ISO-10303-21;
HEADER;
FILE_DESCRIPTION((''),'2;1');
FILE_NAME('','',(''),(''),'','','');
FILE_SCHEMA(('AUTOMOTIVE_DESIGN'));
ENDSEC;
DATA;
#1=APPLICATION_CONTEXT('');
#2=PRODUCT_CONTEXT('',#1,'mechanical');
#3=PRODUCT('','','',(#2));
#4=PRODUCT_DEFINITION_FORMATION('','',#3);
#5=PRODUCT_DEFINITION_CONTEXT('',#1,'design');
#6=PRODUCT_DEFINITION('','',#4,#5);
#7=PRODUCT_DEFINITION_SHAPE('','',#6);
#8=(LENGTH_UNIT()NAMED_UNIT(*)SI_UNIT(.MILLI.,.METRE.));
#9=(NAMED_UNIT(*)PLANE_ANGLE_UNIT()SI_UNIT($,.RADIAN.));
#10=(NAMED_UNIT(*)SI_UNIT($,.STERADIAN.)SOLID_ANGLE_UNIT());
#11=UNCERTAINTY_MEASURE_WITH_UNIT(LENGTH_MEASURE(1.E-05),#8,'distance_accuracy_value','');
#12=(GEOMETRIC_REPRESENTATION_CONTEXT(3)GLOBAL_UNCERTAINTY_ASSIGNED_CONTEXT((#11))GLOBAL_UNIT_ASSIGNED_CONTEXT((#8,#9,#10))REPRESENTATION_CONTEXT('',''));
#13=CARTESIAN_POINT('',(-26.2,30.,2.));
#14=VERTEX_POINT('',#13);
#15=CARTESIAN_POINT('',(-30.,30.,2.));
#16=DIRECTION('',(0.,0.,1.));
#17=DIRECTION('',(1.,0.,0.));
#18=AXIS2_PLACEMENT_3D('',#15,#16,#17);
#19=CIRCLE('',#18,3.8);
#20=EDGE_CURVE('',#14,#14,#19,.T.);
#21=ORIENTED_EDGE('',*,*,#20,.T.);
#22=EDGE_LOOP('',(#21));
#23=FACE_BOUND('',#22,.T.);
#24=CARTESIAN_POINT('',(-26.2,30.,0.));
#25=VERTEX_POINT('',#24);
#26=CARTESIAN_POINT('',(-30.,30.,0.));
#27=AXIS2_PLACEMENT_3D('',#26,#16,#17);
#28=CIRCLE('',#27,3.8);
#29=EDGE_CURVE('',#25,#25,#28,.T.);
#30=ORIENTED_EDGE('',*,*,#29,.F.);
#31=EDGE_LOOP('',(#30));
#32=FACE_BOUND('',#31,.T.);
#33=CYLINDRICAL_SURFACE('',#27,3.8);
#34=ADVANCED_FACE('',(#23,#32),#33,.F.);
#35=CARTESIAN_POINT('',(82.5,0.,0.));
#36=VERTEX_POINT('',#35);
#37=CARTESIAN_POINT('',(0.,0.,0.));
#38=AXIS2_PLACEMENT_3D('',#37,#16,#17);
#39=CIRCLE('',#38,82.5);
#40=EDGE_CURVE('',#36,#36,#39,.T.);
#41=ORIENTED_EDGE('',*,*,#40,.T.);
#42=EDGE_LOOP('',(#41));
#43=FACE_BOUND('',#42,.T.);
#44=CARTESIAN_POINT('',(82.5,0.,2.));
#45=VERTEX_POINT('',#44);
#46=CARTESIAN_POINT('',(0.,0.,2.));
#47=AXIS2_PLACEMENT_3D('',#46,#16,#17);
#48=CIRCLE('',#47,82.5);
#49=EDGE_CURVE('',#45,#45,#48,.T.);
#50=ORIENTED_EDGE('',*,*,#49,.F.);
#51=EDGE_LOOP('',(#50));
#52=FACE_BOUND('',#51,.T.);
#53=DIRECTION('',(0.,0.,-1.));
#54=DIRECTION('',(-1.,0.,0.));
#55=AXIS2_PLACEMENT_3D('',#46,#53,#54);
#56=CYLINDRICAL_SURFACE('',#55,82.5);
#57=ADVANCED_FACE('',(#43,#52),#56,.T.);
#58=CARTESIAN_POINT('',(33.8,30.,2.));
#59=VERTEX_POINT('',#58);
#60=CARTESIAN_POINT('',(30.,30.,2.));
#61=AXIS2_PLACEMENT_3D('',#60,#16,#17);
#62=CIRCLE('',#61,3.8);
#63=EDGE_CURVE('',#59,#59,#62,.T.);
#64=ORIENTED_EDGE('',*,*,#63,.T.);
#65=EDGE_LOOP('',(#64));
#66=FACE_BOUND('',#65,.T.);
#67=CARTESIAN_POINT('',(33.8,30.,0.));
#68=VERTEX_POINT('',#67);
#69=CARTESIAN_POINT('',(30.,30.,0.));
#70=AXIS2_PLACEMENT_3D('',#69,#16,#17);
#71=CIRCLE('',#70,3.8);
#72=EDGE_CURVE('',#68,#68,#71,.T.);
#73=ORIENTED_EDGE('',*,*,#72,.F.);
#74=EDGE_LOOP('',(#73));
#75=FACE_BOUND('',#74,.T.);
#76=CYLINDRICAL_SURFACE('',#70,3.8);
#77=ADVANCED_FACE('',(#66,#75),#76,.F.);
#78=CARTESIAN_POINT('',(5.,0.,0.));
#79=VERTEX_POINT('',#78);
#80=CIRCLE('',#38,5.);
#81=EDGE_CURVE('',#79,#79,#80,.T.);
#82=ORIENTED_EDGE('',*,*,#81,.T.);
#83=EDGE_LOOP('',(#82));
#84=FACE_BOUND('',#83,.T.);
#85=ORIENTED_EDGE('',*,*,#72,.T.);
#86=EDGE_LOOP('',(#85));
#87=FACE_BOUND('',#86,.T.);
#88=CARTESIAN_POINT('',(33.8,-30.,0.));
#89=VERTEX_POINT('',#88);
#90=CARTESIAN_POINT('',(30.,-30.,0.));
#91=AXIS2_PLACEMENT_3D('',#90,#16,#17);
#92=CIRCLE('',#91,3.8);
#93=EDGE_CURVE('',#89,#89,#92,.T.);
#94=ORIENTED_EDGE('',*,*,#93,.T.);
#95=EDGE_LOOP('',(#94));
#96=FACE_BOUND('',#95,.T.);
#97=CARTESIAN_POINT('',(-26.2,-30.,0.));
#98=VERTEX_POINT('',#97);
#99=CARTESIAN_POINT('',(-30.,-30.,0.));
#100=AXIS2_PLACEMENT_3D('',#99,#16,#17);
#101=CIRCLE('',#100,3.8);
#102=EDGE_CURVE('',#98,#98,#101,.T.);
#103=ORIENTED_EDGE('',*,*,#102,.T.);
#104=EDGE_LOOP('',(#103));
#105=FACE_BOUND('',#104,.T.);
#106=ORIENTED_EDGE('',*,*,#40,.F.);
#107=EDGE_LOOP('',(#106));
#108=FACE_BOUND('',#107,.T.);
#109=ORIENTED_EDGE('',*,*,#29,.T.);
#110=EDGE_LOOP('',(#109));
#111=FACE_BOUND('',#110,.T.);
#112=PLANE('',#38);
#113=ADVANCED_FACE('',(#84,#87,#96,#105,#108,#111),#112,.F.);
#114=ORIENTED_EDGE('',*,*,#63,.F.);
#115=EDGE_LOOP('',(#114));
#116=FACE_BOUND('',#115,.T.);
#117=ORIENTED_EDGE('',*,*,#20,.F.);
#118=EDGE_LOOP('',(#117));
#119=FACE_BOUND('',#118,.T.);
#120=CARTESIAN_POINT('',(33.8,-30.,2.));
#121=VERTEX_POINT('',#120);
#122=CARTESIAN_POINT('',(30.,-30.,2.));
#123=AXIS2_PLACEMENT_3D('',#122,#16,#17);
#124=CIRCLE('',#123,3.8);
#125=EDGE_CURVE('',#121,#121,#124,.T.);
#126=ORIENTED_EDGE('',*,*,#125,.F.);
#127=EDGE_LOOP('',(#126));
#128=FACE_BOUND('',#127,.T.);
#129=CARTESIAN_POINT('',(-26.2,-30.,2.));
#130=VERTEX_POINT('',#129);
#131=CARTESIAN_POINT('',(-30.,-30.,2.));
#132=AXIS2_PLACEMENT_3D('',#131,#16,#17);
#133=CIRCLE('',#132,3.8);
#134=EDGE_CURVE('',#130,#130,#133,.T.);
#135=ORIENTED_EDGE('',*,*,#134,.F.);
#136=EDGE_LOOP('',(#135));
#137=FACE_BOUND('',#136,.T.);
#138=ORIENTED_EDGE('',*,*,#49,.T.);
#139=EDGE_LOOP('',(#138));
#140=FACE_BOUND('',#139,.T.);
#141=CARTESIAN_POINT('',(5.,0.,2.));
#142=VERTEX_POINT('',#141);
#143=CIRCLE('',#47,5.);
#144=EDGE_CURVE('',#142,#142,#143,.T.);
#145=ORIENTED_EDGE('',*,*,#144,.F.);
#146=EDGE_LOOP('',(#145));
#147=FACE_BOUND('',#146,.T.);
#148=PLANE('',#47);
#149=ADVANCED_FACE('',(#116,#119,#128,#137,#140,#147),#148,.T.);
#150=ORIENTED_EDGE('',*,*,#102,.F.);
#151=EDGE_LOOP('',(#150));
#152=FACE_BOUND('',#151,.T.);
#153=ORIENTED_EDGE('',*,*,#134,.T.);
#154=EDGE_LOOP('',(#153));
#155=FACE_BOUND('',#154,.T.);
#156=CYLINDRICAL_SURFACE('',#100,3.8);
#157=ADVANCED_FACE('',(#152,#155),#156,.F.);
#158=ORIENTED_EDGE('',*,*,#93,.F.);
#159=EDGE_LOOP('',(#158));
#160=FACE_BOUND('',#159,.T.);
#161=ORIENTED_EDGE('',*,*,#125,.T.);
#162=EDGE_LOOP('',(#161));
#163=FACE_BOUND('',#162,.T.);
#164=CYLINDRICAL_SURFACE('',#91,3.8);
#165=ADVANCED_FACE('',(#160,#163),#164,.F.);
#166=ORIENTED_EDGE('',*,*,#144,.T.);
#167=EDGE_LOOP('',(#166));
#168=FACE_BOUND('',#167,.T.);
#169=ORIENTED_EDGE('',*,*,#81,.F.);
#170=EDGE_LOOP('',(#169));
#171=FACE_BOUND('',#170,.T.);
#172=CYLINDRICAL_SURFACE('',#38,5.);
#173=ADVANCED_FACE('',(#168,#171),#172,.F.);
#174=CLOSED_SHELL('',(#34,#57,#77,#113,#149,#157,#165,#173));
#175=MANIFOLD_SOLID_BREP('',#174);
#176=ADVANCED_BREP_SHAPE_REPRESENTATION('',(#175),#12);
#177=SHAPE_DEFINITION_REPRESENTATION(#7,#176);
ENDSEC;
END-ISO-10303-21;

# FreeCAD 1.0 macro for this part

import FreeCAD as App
import Part
import Sketcher
from FreeCAD import Vector

doc = App.newDocument("Part")
body = doc.addObject("PartDesign::Body", "Body")

# Sketch on XY plane
sketch1 = body.newObject("Sketcher::SketchObject", "Sketch")
sketch1.AttachmentSupport = (doc.getObject("XY_Plane"), [""])
sketch1.MapMode = "FlatFace"
sketch1.addGeometry(Part.Circle(Vector(0, 0, 0), Vector(0, 0, 1), 82), False)
sketch1.addConstraint([
    Sketcher.Constraint("Coincident", 0, 3, -1, 1),
    Sketcher.Constraint("Diameter", 0, 165.0),
])
pad1 = body.newObject("PartDesign::Pad", "Pad")
pad1.Profile = sketch1
pad1.Length = 2

# Sketch on XY plane
sketch2 = body.newObject("Sketcher::SketchObject", "Sketch001")
sketch2.AttachmentSupport = (doc.getObject("XY_Plane"), [""])
sketch2.MapMode = "FlatFace"
sketch2.AttachmentOffset = App.Placement(Vector(0, 0, 2), App.Rotation())
sketch2.addGeometry([
    Part.Circle(Vector(30, 30, 0), Vector(0, 0, 1), 3.8),  # 0
    Part.Circle(Vector(-30, 30, 0), Vector(0, 0, 1), 3.8),  # 1
    Part.Circle(Vector(-30, -30, 0), Vector(0, 0, 1), 3.8),  # 2
    Part.Circle(Vector(30, -30, 0), Vector(0, 0, 1), 3.8),  # 3
    Part.Circle(Vector(0, 0, 0), Vector(0, 0, 1), 5),  # 4
], False)
sketch2.addConstraint([
    Sketcher.Constraint("Coincident", 4, 3, -1, 1),
    Sketcher.Constraint("Equal", 0, 1),
    Sketcher.Constraint("Equal", 1, 2),
    Sketcher.Constraint("Equal", 2, 3),
    Sketcher.Constraint("Symmetric", 0, 3, 2, 3, -1, 1),
    Sketcher.Constraint("Symmetric", 1, 3, 3, 3, -1, 1),
    Sketcher.Constraint("Symmetric", 0, 3, 1, 3, -2),
    Sketcher.Constraint("Diameter", 4, 10.0),
    Sketcher.Constraint("Diameter", 0, 7.6),
    Sketcher.Constraint("DistanceX", -1, 1, 0, 3, 30.0),
    Sketcher.Constraint("DistanceY", -1, 1, 0, 3, 30.0),
])
pocket1 = body.newObject("PartDesign::Pocket", "Pocket")
pocket1.Profile = sketch2
pocket1.Type = "ThroughAll"

doc.recompute()
